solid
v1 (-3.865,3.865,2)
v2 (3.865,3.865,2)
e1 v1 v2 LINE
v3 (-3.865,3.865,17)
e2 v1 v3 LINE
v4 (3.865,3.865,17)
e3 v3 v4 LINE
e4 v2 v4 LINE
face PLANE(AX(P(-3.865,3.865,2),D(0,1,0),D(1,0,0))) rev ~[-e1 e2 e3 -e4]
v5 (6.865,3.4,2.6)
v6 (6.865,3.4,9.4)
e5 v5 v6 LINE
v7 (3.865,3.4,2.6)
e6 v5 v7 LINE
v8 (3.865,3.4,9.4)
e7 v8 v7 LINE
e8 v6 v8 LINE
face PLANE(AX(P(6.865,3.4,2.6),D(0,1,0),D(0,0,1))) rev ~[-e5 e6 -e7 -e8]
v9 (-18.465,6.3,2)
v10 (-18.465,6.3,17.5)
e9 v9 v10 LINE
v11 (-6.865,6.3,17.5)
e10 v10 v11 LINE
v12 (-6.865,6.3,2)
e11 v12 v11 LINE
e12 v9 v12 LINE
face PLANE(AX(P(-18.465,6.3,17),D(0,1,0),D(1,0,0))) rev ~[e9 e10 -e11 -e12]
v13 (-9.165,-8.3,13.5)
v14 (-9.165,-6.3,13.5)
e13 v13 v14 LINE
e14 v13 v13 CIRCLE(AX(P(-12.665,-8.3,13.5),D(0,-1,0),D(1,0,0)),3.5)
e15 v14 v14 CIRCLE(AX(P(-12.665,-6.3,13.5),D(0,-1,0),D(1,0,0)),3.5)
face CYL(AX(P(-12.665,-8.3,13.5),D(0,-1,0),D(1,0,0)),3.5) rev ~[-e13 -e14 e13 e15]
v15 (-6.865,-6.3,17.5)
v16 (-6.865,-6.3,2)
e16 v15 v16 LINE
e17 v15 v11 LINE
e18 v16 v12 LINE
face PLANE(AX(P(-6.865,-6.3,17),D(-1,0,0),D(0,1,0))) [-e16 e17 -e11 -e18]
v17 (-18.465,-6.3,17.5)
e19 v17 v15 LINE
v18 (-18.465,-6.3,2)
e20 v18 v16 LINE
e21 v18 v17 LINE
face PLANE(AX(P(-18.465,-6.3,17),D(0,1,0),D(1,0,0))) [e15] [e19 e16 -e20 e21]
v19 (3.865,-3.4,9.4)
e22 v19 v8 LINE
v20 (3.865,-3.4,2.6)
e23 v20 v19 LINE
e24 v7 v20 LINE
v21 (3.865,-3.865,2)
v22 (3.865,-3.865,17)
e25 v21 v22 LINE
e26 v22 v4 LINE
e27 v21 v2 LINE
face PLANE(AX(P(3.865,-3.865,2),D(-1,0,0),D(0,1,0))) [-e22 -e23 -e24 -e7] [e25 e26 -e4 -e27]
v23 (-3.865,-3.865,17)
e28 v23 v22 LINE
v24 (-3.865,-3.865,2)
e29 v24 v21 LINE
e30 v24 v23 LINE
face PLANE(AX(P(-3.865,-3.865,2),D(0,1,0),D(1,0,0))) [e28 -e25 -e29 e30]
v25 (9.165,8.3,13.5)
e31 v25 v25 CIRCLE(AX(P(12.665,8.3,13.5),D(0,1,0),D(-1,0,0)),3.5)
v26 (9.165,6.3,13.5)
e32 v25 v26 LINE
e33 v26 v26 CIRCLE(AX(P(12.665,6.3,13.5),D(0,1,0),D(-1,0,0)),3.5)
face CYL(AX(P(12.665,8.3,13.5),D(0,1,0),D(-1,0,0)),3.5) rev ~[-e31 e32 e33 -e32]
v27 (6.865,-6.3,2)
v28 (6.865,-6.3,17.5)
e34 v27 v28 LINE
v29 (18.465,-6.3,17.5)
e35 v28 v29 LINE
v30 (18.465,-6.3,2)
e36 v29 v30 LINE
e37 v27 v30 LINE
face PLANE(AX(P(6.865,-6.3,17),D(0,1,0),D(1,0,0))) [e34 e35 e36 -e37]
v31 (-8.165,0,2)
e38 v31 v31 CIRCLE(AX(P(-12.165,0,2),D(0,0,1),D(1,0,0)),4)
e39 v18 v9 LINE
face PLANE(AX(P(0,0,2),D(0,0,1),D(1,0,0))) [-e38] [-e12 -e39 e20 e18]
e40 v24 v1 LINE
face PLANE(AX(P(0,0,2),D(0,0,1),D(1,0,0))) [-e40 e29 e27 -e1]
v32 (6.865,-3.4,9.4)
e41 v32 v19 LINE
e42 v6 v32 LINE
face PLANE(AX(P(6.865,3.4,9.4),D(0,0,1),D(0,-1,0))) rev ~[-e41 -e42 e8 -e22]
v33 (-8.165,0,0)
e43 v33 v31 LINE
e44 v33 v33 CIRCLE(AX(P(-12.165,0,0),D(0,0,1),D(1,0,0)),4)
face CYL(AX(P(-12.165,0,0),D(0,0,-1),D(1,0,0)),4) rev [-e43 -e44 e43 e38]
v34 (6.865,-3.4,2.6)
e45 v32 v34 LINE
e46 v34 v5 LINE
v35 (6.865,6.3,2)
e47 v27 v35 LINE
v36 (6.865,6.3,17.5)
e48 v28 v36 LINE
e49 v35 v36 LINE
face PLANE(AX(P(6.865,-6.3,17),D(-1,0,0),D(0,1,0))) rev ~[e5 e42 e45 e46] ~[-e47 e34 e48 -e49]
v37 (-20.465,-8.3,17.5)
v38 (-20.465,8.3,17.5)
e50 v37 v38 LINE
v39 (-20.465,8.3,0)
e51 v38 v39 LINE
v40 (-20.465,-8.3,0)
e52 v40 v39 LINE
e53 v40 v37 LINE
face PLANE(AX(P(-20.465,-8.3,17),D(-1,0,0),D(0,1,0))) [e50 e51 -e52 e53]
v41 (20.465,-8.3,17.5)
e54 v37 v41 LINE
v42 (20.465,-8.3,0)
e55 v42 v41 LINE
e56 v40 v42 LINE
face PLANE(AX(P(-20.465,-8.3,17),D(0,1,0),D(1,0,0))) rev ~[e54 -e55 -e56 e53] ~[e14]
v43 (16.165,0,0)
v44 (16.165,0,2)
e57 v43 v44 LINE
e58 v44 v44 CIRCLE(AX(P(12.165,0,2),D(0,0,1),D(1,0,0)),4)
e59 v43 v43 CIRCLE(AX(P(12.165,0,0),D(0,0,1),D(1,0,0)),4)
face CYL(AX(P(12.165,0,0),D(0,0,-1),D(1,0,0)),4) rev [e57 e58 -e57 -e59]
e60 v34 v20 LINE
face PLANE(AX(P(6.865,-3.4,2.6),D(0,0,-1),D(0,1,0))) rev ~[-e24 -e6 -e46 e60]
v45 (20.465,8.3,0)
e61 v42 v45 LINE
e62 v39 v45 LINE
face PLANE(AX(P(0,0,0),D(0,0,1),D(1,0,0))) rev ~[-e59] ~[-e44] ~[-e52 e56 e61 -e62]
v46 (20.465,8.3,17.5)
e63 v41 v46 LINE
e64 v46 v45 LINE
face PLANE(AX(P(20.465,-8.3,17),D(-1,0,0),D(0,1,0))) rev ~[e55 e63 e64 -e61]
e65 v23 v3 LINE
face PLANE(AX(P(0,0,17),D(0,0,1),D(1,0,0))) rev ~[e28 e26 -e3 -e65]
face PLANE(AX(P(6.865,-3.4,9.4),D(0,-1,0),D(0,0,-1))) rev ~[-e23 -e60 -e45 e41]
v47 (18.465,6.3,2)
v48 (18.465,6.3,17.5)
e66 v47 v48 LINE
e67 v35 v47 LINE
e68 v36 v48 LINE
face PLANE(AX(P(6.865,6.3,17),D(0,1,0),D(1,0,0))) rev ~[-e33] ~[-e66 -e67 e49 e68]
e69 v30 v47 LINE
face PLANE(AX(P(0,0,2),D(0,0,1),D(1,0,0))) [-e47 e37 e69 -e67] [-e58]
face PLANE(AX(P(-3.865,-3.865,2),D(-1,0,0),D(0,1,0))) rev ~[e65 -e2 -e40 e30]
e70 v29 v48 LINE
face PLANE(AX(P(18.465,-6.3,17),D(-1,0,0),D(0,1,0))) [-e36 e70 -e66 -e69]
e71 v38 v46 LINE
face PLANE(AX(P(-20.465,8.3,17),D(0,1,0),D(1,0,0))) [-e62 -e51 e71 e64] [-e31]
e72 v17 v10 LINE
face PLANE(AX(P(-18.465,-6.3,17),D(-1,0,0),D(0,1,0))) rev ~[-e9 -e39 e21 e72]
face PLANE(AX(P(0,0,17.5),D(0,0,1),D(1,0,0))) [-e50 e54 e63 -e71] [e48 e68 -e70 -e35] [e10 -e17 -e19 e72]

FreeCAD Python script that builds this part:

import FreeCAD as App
import Part
import Sketcher
Q = App.Units.Quantity


def add_polygon(sketch, points):
    """Adds a closed chain of lines whose ends are joined by coincident constraints."""
    first, n = sketch.GeometryCount, len(points)
    for a, b in zip(points, points[1:] + points[:1]):
        sketch.addGeometry(Part.LineSegment(App.Vector(*a, 0), App.Vector(*b, 0)), False)
    for i in range(n):
        sketch.addConstraint(Sketcher.Constraint("Coincident", first + i, 2, first + (i + 1) % n, 1))

doc = App.newDocument("Part")
body = doc.addObject("PartDesign::Body", "Body")

# Sketch on XY plane
sketch1 = body.newObject("Sketcher::SketchObject", "Sketch")
sketch1.AttachmentSupport = (doc.getObject("XY_Plane"), [""])
sketch1.MapMode = "FlatFace"
add_polygon(sketch1, [(-20.5, 8.3), (-20.5, -8.3), (20.5, -8.3), (20.5, 8.3)])  # lines 0-3
sketch1.addGeometry(Part.Circle(App.Vector(-12.2, 0, 0), App.Vector(0, 0, 1), 4), False)  # 4
sketch1.addGeometry(Part.Circle(App.Vector(12.2, 0, 0), App.Vector(0, 0, 1), 4), False)  # 5
sketch1.addConstraint([
    Sketcher.Constraint("Vertical", 0),
    Sketcher.Constraint("Horizontal", 1),
    Sketcher.Constraint("Vertical", 2),
    Sketcher.Constraint("Horizontal", 3),
    Sketcher.Constraint("Equal", 4, 5),
    Sketcher.Constraint("Symmetric", 4, 3, 5, 3, -1, 1),
    Sketcher.Constraint("Symmetric", 0, 2, 2, 2, -1, 1),
    Sketcher.Constraint("PointOnObject", 4, 3, -1),
    Sketcher.Constraint("Diameter", 4, Q("8 mm")),
    Sketcher.Constraint("DistanceY", 0, 2, 0, 1, Q("16.6 mm")),
    Sketcher.Constraint("DistanceX", 1, 1, 1, 2, Q("40.93 mm")),
    Sketcher.Constraint("DistanceX", 0, 2, 4, 3, Q("8.3 mm")),
])
pad1 = body.newObject("PartDesign::Pad", "Pad")
pad1.Profile = sketch1
pad1.Length = 2

# Sketch on XY plane
sketch2 = body.newObject("Sketcher::SketchObject", "Sketch001")
sketch2.AttachmentSupport = (doc.getObject("XY_Plane"), [""])
sketch2.MapMode = "FlatFace"
sketch2.AttachmentOffset = App.Placement(App.Vector(0, 0, 2), App.Rotation())
add_polygon(sketch2, [(-20, 8), (-20, -8), (20, -8), (20, 8)])  # lines 0-3
add_polygon(sketch2, [(-7, -6), (-18, -6), (-18, 6), (-7, 6)])  # lines 4-7
add_polygon(sketch2, [(4, -4), (-4, -4), (-4, 4), (4, 4)])  # lines 8-11
add_polygon(sketch2, [(18, -6), (7, -6), (7, 6), (18, 6)])  # lines 12-15
sketch2.addConstraint([
    Sketcher.Constraint("Vertical", 0),
    Sketcher.Constraint("Horizontal", 1),
    Sketcher.Constraint("Vertical", 2),
    Sketcher.Constraint("Horizontal", 3),
    Sketcher.Constraint("Horizontal", 4),
    Sketcher.Constraint("Vertical", 5),
    Sketcher.Constraint("Horizontal", 6),
    Sketcher.Constraint("Vertical", 7),
    Sketcher.Constraint("Horizontal", 8),
    Sketcher.Constraint("Vertical", 9),
    Sketcher.Constraint("Horizontal", 10),
    Sketcher.Constraint("Vertical", 11),
    Sketcher.Constraint("Horizontal", 12),
    Sketcher.Constraint("Vertical", 13),
    Sketcher.Constraint("Horizontal", 14),
    Sketcher.Constraint("Vertical", 15),
    Sketcher.Constraint("Symmetric", 0, 2, 2, 2, -1, 1),
    Sketcher.Constraint("Symmetric", 8, 2, 10, 2, -1, 1),
    Sketcher.Constraint("Symmetric", 6, 2, 12, 2, -1, 1),
    Sketcher.Constraint("Symmetric", 4, 2, 14, 2, -1, 1),
    Sketcher.Constraint("Horizontal", 7, 2, 12, 2),
    Sketcher.Constraint("Equal", 10, 9),
    Sketcher.Constraint("DistanceX", 4, 2, 4, 1, Q("11.6 mm")),
    Sketcher.Constraint("DistanceY", 0, 2, 0, 1, Q("16.6 mm")),
    Sketcher.Constraint("DistanceY", 5, 1, 5, 2, Q("12.6 mm")),
    Sketcher.Constraint("DistanceX", 0, 2, 4, 2, Q("2 mm")),
    Sketcher.Constraint("DistanceX", 7, 2, 8, 2, Q("3 mm")),
    Sketcher.Constraint("DistanceX", 1, 1, 1, 2, Q("40.93 mm")),
])
pad2 = body.newObject("PartDesign::Pad", "Pad001")
pad2.Profile = sketch2
pad2.Length = 15

# Sketch on XY plane
sketch3 = body.newObject("Sketcher::SketchObject", "Sketch002")
sketch3.AttachmentSupport = (doc.getObject("XY_Plane"), [""])
sketch3.MapMode = "FlatFace"
sketch3.AttachmentOffset = App.Placement(App.Vector(0, 0, 17), App.Rotation())
add_polygon(sketch3, [(-20, 8), (-20, -8), (20, -8), (20, 8)])  # lines 0-3
add_polygon(sketch3, [(-7, -6), (-18, -6), (-18, 6), (-7, 6)])  # lines 4-7
add_polygon(sketch3, [(18, -6), (7, -6), (7, 6), (18, 6)])  # lines 8-11
sketch3.addConstraint([
    Sketcher.Constraint("Vertical", 0),
    Sketcher.Constraint("Horizontal", 1),
    Sketcher.Constraint("Vertical", 2),
    Sketcher.Constraint("Horizontal", 3),
    Sketcher.Constraint("Horizontal", 4),
    Sketcher.Constraint("Vertical", 5),
    Sketcher.Constraint("Horizontal", 6),
    Sketcher.Constraint("Vertical", 7),
    Sketcher.Constraint("Horizontal", 8),
    Sketcher.Constraint("Vertical", 9),
    Sketcher.Constraint("Horizontal", 10),
    Sketcher.Constraint("Vertical", 11),
    Sketcher.Constraint("Symmetric", 0, 2, 2, 2, -1, 1),
    Sketcher.Constraint("Symmetric", 6, 2, 8, 2, -1, 1),
    Sketcher.Constraint("Symmetric", 4, 2, 10, 2, -1, 1),
    Sketcher.Constraint("Horizontal", 7, 2, 8, 2),
    Sketcher.Constraint("DistanceX", 4, 2, 4, 1, Q("11.6 mm")),
    Sketcher.Constraint("DistanceY", 0, 2, 0, 1, Q("16.6 mm")),
    Sketcher.Constraint("DistanceY", 5, 1, 5, 2, Q("12.6 mm")),
    Sketcher.Constraint("DistanceX", 0, 2, 4, 2, Q("2 mm")),
    Sketcher.Constraint("DistanceX", 1, 1, 1, 2, Q("40.93 mm")),
])
pad3 = body.newObject("PartDesign::Pad", "Pad002")
pad3.Profile = sketch3
pad3.Length = 0.5

# Sketch on YZ plane
sketch4 = body.newObject("Sketcher::SketchObject", "Sketch003")
sketch4.AttachmentSupport = (doc.getObject("YZ_Plane"), [""])
sketch4.MapMode = "FlatFace"
sketch4.AttachmentOffset = App.Placement(App.Vector(0, 0, 6.865), App.Rotation())
add_polygon(sketch4, [(-3, 9), (-3, 3), (3, 3), (3, 9)])  # lines 0-3
sketch4.addConstraint([
    Sketcher.Constraint("Vertical", 0),
    Sketcher.Constraint("Horizontal", 1),
    Sketcher.Constraint("Vertical", 2),
    Sketcher.Constraint("Horizontal", 3),
    Sketcher.Constraint("Equal", 3, 0),
    Sketcher.Constraint("DistanceX", 1, 1, 1, 2, Q("6.8 mm")),
    Sketcher.Constraint("DistanceX", 0, 2, -1, 1, Q("3.4 mm")),
    Sketcher.Constraint("DistanceY", -1, 1, 0, 2, Q("2.6 mm")),
])
pocket1 = body.newObject("PartDesign::Pocket", "Pocket")
pocket1.Profile = sketch4
pocket1.Length = 4

# Sketch on XZ plane
sketch5 = body.newObject("Sketcher::SketchObject", "Sketch004")
sketch5.AttachmentSupport = (doc.getObject("XZ_Plane"), [""])
sketch5.MapMode = "FlatFace"
sketch5.AttachmentOffset = App.Placement(App.Vector(0, 0, -8.3), App.Rotation())
sketch5.addGeometry(Part.Circle(App.Vector(12.7, 13.5, 0), App.Vector(0, 0, 1), 3.5), False)
sketch5.addConstraint([
    Sketcher.Constraint("Diameter", 0, Q("7 mm")),
    Sketcher.Constraint("DistanceY", -1, 1, 0, 3, Q("13.5 mm")),
    Sketcher.Constraint("DistanceX", -1, 1, 0, 3, Q("12.665 mm")),
])
pocket2 = body.newObject("PartDesign::Pocket", "Pocket001")
pocket2.Profile = sketch5
pocket2.Length = 3
pocket2.Reversed = True

# Sketch on XZ plane
sketch6 = body.newObject("Sketcher::SketchObject", "Sketch005")
sketch6.AttachmentSupport = (doc.getObject("XZ_Plane"), [""])
sketch6.MapMode = "FlatFace"
sketch6.AttachmentOffset = App.Placement(App.Vector(0, 0, 8.3), App.Rotation())
sketch6.addGeometry(Part.Circle(App.Vector(-12.7, 13.5, 0), App.Vector(0, 0, 1), 3.5), False)
sketch6.addConstraint([
    Sketcher.Constraint("Diameter", 0, Q("7 mm")),
    Sketcher.Constraint("DistanceY", -1, 1, 0, 3, Q("13.5 mm")),
    Sketcher.Constraint("DistanceX", 0, 3, -1, 1, Q("12.665 mm")),
])
pocket3 = body.newObject("PartDesign::Pocket", "Pocket002")
pocket3.Profile = sketch6
pocket3.Length = 3

doc.recompute()
